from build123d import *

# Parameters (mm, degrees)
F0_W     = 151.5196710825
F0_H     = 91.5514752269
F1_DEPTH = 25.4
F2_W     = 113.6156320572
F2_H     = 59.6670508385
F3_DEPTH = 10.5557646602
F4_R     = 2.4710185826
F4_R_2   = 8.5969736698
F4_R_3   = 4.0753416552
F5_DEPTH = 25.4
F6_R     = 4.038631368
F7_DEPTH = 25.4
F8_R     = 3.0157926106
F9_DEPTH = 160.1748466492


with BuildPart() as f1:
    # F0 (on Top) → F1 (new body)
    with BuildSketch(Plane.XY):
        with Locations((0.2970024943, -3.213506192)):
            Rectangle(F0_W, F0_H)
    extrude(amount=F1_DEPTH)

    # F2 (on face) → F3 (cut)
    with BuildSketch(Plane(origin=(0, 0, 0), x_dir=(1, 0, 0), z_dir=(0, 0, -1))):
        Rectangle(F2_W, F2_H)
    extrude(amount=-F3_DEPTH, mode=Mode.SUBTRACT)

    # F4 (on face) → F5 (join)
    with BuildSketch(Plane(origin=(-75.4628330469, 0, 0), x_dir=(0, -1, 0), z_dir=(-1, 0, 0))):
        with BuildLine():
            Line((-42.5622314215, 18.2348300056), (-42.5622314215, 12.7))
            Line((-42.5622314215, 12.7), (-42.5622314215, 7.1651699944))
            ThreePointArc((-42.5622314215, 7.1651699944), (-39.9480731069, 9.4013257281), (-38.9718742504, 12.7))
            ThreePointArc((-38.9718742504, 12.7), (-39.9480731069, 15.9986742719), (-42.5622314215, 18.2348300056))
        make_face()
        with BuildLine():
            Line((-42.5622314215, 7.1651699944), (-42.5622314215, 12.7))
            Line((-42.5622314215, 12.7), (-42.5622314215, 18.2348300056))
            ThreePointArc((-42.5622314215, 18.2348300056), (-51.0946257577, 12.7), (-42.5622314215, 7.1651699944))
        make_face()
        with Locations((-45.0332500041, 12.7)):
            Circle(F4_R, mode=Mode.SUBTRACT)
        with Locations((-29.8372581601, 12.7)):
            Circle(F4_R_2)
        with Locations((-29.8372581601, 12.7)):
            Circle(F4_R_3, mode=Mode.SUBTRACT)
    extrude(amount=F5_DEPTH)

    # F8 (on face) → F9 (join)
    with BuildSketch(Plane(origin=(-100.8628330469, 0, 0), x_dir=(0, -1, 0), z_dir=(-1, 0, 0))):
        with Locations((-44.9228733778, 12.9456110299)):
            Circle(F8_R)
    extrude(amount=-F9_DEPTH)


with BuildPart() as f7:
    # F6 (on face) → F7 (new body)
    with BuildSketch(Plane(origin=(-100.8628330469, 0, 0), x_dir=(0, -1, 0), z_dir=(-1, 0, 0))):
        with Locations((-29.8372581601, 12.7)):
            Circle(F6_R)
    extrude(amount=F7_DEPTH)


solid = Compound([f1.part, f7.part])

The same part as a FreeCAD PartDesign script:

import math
import FreeCAD as App
import Part
import Sketcher
Q = App.Units.Quantity

doc = App.newDocument("Part")
body = doc.addObject("PartDesign::Body", "Body")

# Sketch on XY plane
sketch1 = body.newObject("Sketcher::SketchObject", "Sketch")
sketch1.AttachmentSupport = (doc.getObject("XY_Plane"), [""])
sketch1.MapMode = "FlatFace"
sketch1.addGeometry(Part.LineSegment(App.Vector(-75, 43, 0), App.Vector(-75, -49, 0)), False)
sketch1.addGeometry(Part.LineSegment(App.Vector(-75, -49, 0), App.Vector(76, -49, 0)), False)
sketch1.addGeometry(Part.LineSegment(App.Vector(76, -49, 0), App.Vector(76, 43, 0)), False)
sketch1.addGeometry(Part.LineSegment(App.Vector(76, 43, 0), App.Vector(-75, 43, 0)), False)
sketch1.addConstraint(Sketcher.Constraint("Coincident", 0, 2, 1, 1))
sketch1.addConstraint(Sketcher.Constraint("Coincident", 1, 2, 2, 1))
sketch1.addConstraint(Sketcher.Constraint("Coincident", 2, 2, 3, 1))
sketch1.addConstraint(Sketcher.Constraint("Coincident", 3, 2, 0, 1))
sketch1.addConstraint(Sketcher.Constraint("Vertical", 0))
sketch1.addConstraint(Sketcher.Constraint("Horizontal", 1))
sketch1.addConstraint(Sketcher.Constraint("Vertical", 2))
sketch1.addConstraint(Sketcher.Constraint("Horizontal", 3))
sketch1.addConstraint(Sketcher.Constraint("DistanceX", 1, 1, 1, 2, 151.519671))
sketch1.addConstraint(Sketcher.Constraint("DistanceY", 0, 2, 0, 1, 91.551475))
sketch1.addConstraint(Sketcher.Constraint("DistanceX", -1, 1, 1, 2, 76.056838))
sketch1.addConstraint(Sketcher.Constraint("DistanceY", -1, 1, 2, 2, 42.562231))
pad1 = body.newObject("PartDesign::Pad", "Pad")
pad1.Profile = sketch1
pad1.Length = Q("1 in")

# Sketch on XY plane
sketch2 = body.newObject("Sketcher::SketchObject", "Sketch001")
sketch2.AttachmentSupport = (doc.getObject("XY_Plane"), [""])
sketch2.MapMode = "FlatFace"
sketch2.addGeometry(Part.LineSegment(App.Vector(-57, -30, 0), App.Vector(-57, 30, 0)), False)
sketch2.addGeometry(Part.LineSegment(App.Vector(-57, 30, 0), App.Vector(57, 30, 0)), False)
sketch2.addGeometry(Part.LineSegment(App.Vector(57, 30, 0), App.Vector(57, -30, 0)), False)
sketch2.addGeometry(Part.LineSegment(App.Vector(57, -30, 0), App.Vector(-57, -30, 0)), False)
sketch2.addConstraint(Sketcher.Constraint("Coincident", 0, 2, 1, 1))
sketch2.addConstraint(Sketcher.Constraint("Coincident", 1, 2, 2, 1))
sketch2.addConstraint(Sketcher.Constraint("Coincident", 2, 2, 3, 1))
sketch2.addConstraint(Sketcher.Constraint("Coincident", 3, 2, 0, 1))
sketch2.addConstraint(Sketcher.Constraint("Vertical", 0))
sketch2.addConstraint(Sketcher.Constraint("Horizontal", 1))
sketch2.addConstraint(Sketcher.Constraint("Vertical", 2))
sketch2.addConstraint(Sketcher.Constraint("Horizontal", 3))
sketch2.addConstraint(Sketcher.Constraint("Symmetric", 0, 2, 2, 2, -1, 1))
sketch2.addConstraint(Sketcher.Constraint("DistanceY", 0, 1, 0, 2, 59.667051))
sketch2.addConstraint(Sketcher.Constraint("DistanceX", 1, 1, 1, 2, 113.615632))
pocket1 = body.newObject("PartDesign::Pocket", "Pocket")
pocket1.Profile = sketch2
pocket1.Length = 10.555765
pocket1.Reversed = True

# Sketch on YZ plane
sketch3 = body.newObject("Sketcher::SketchObject", "Sketch002")
sketch3.AttachmentSupport = (doc.getObject("YZ_Plane"), [""])
sketch3.MapMode = "FlatFace"
sketch3.AttachmentOffset = App.Placement(App.Vector(0, 0, -75.462833), App.Rotation())
sketch3.addGeometry(Part.ArcOfCircle(Part.Circle(App.Vector(45, 12.7, 0), App.Vector(0, 0, 1), 6.1), math.radians(180), math.radians(246)), False)
sketch3.addGeometry(Part.ArcOfCircle(Part.Circle(App.Vector(45, 12.7, 0), App.Vector(0, 0, 1), 6.1), math.radians(114), math.radians(180)), False)
sketch3.addGeometry(Part.ArcOfCircle(Part.Circle(App.Vector(45, 12.7, 0), App.Vector(0, 0, 1), 6.1), math.radians(-114), math.radians(114)), False)
sketch3.addGeometry(Part.Circle(App.Vector(45, 12.7, 0), App.Vector(0, 0, 1), 2.5), False)
sketch3.addGeometry(Part.Circle(App.Vector(29.8, 12.7, 0), App.Vector(0, 0, 1), 8.6), False)
sketch3.addGeometry(Part.Circle(App.Vector(29.8, 12.7, 0), App.Vector(0, 0, 1), 4.1), False)
sketch3.addConstraint(Sketcher.Constraint("Tangent", 0, 1, 1, 2))
sketch3.addConstraint(Sketcher.Constraint("Tangent", 1, 1, 2, 2))
sketch3.addConstraint(Sketcher.Constraint("Tangent", 2, 1, 0, 2))
sketch3.addConstraint(Sketcher.Constraint("Coincident", 3, 3, 0, 3))
sketch3.addConstraint(Sketcher.Constraint("Coincident", 5, 3, 4, 3))
sketch3.addConstraint(Sketcher.Constraint("Horizontal", 3, 3, 4, 3))
sketch3.addConstraint(Sketcher.Constraint("Horizontal", 5, 3, 0, 1))
sketch3.addConstraint(Sketcher.Constraint("Vertical", 1, 1, 2, 1))
sketch3.addConstraint(Sketcher.Constraint("DistanceY", -1, 1, 0, 3, Q("0.5 in")))
sketch3.addConstraint(Sketcher.Constraint("Diameter", 3, 4.942037))
sketch3.addConstraint(Sketcher.Constraint("Diameter", 4, 17.193947))
sketch3.addConstraint(Sketcher.Constraint("Diameter", 5, 8.150683))
sketch3.addConstraint(Sketcher.Constraint("Radius", 0, 6.061376))
sketch3.addConstraint(Sketcher.Constraint("DistanceX", -1, 1, 0, 3, 45.03325))
sketch3.addConstraint(Sketcher.Constraint("DistanceX", -1, 1, 4, 3, 29.837258))
sketch3.addConstraint(Sketcher.Constraint("DistanceX", -1, 1, 1, 1, 42.562231))
pad2 = body.newObject("PartDesign::Pad", "Pad001")
pad2.Profile = sketch3
pad2.Length = Q("1 in")
pad2.Reversed = True

# Sketch on YZ plane
sketch4 = body.newObject("Sketcher::SketchObject", "Sketch003")
sketch4.AttachmentSupport = (doc.getObject("YZ_Plane"), [""])
sketch4.MapMode = "FlatFace"
sketch4.AttachmentOffset = App.Placement(App.Vector(0, 0, -100.862833), App.Rotation())
sketch4.addGeometry(Part.Circle(App.Vector(44.9, 12.9, 0), App.Vector(0, 0, 1), 3), False)
sketch4.addConstraint(Sketcher.Constraint("Diameter", 0, 6.031585))
sketch4.addConstraint(Sketcher.Constraint("DistanceY", -1, 1, 0, 3, 12.945611))
sketch4.addConstraint(Sketcher.Constraint("DistanceX", -1, 1, 0, 3, 44.922873))
pad3 = body.newObject("PartDesign::Pad", "Pad002")
pad3.Profile = sketch4
pad3.Length = 160.174847
body2 = doc.addObject("PartDesign::Body", "Body001")

# Sketch on YZ plane
sketch5 = body2.newObject("Sketcher::SketchObject", "Sketch004")
sketch5.AttachmentSupport = (doc.getObject("YZ_Plane001"), [""])
sketch5.MapMode = "FlatFace"
sketch5.AttachmentOffset = App.Placement(App.Vector(0, 0, -100.862833), App.Rotation())
sketch5.addGeometry(Part.Circle(App.Vector(29.8, 12.7, 0), App.Vector(0, 0, 1), 4), False)
sketch5.addConstraint(Sketcher.Constraint("DistanceY", -1, 1, 0, 3, Q("0.5 in")))
sketch5.addConstraint(Sketcher.Constraint("Diameter", 0, 8.077263))
sketch5.addConstraint(Sketcher.Constraint("DistanceX", -1, 1, 0, 3, 29.837258))
pad4 = body2.newObject("PartDesign::Pad", "Pad003")
pad4.Profile = sketch5
pad4.Length = Q("1 in")
pad4.Reversed = True

doc.recompute()
